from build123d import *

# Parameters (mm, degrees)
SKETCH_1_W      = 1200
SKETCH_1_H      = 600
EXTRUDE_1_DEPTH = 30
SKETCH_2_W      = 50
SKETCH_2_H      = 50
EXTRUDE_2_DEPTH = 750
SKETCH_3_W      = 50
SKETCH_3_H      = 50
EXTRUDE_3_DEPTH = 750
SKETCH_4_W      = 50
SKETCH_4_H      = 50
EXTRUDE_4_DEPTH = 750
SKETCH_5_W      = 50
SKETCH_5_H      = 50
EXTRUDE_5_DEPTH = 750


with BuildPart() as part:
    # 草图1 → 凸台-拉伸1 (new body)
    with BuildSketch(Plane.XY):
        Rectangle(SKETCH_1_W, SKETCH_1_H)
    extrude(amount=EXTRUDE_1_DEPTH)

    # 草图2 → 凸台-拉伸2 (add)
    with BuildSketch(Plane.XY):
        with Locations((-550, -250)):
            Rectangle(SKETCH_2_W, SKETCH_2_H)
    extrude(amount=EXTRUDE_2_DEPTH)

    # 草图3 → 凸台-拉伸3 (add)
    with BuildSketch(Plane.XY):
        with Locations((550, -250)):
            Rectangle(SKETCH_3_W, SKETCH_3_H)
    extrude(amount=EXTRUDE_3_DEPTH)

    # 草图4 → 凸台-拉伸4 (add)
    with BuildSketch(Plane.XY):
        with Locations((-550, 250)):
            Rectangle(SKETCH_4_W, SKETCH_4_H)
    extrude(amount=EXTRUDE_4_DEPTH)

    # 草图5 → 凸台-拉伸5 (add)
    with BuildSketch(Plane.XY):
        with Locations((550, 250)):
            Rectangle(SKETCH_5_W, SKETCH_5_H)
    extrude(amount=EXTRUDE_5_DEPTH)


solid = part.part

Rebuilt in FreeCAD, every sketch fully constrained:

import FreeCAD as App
import Part
import Sketcher
from FreeCAD import Vector
Q = App.Units.Quantity


def add_polygon(sketch, points):
    """Adds a closed chain of lines whose ends are joined by coincident constraints."""
    first, n = sketch.GeometryCount, len(points)
    for a, b in zip(points, points[1:] + points[:1]):
        sketch.addGeometry(Part.LineSegment(App.Vector(*a, 0), App.Vector(*b, 0)), False)
    for i in range(n):
        sketch.addConstraint(Sketcher.Constraint("Coincident", first + i, 2, first + (i + 1) % n, 1))

doc = App.newDocument("Part")
body = doc.addObject("PartDesign::Body", "Body")

# Sketch on XY plane
sketch1 = doc.addObject("Sketcher::SketchObject", "Sketch")
body.addObject(sketch1)
sketch1.AttachmentSupport = (doc.XY_Plane, [""])
sketch1.MapMode = "FlatFace"
add_polygon(sketch1, [(-600, 300), (-600, -300), (600, -300), (600, 300)])  # lines 0-3
sketch1.addConstraint(Sketcher.Constraint("Vertical", 0))
sketch1.addConstraint(Sketcher.Constraint("Horizontal", 1))
sketch1.addConstraint(Sketcher.Constraint("Vertical", 2))
sketch1.addConstraint(Sketcher.Constraint("Horizontal", 3))
sketch1.addConstraint(Sketcher.Constraint("Symmetric", 0, 2, 2, 2, -1, 1))
sketch1.addConstraint(Sketcher.Constraint("DistanceX", 1, 1, 1, 2, Q("1200 mm")))
sketch1.addConstraint(Sketcher.Constraint("DistanceY", 0, 2, 0, 1, Q("600 mm")))
pad1 = doc.addObject("PartDesign::Pad", "Pad")
body.addObject(pad1)
pad1.Profile = sketch1
pad1.Length = 30

# Sketch on XY plane
sketch2 = doc.addObject("Sketcher::SketchObject", "Sketch001")
body.addObject(sketch2)
sketch2.AttachmentSupport = (doc.XY_Plane, [""])
sketch2.MapMode = "FlatFace"
add_polygon(sketch2, [(-575, -225), (-575, -275), (-525, -275), (-525, -225)])  # lines 0-3
sketch2.addConstraint(Sketcher.Constraint("Vertical", 0))
sketch2.addConstraint(Sketcher.Constraint("Horizontal", 1))
sketch2.addConstraint(Sketcher.Constraint("Vertical", 2))
sketch2.addConstraint(Sketcher.Constraint("Horizontal", 3))
sketch2.addConstraint(Sketcher.Constraint("Equal", 3, 0))
sketch2.addConstraint(Sketcher.Constraint("DistanceX", 1, 1, 1, 2, Q("50 mm")))
sketch2.addConstraint(Sketcher.Constraint("DistanceX", 0, 2, -1, 1, Q("575 mm")))
sketch2.addConstraint(Sketcher.Constraint("DistanceY", 0, 2, -1, 1, Q("275 mm")))
pad2 = doc.addObject("PartDesign::Pad", "Pad001")
body.addObject(pad2)
pad2.Profile = sketch2
pad2.Length = 750

# Sketch on XY plane
sketch3 = doc.addObject("Sketcher::SketchObject", "Sketch002")
body.addObject(sketch3)
sketch3.AttachmentSupport = (doc.XY_Plane, [""])
sketch3.MapMode = "FlatFace"
add_polygon(sketch3, [(525, -225), (525, -275), (575, -275), (575, -225)])  # lines 0-3
sketch3.addConstraint(Sketcher.Constraint("Vertical", 0))
sketch3.addConstraint(Sketcher.Constraint("Horizontal", 1))
sketch3.addConstraint(Sketcher.Constraint("Vertical", 2))
sketch3.addConstraint(Sketcher.Constraint("Horizontal", 3))
sketch3.addConstraint(Sketcher.Constraint("Equal", 3, 0))
sketch3.addConstraint(Sketcher.Constraint("DistanceX", 1, 1, 1, 2, Q("50 mm")))
sketch3.addConstraint(Sketcher.Constraint("DistanceX", -1, 1, 0, 2, Q("525 mm")))
sketch3.addConstraint(Sketcher.Constraint("DistanceY", 0, 2, -1, 1, Q("275 mm")))
pad3 = doc.addObject("PartDesign::Pad", "Pad002")
body.addObject(pad3)
pad3.Profile = sketch3
pad3.Length = 750

# Sketch on XY plane
sketch4 = doc.addObject("Sketcher::SketchObject", "Sketch003")
body.addObject(sketch4)
sketch4.AttachmentSupport = (doc.XY_Plane, [""])
sketch4.MapMode = "FlatFace"
add_polygon(sketch4, [(-575, 275), (-575, 225), (-525, 225), (-525, 275)])  # lines 0-3
sketch4.addConstraint(Sketcher.Constraint("Vertical", 0))
sketch4.addConstraint(Sketcher.Constraint("Horizontal", 1))
sketch4.addConstraint(Sketcher.Constraint("Vertical", 2))
sketch4.addConstraint(Sketcher.Constraint("Horizontal", 3))
sketch4.addConstraint(Sketcher.Constraint("Equal", 3, 0))
sketch4.addConstraint(Sketcher.Constraint("DistanceX", 1, 1, 1, 2, Q("50 mm")))
sketch4.addConstraint(Sketcher.Constraint("DistanceX", 0, 2, -1, 1, Q("575 mm")))
sketch4.addConstraint(Sketcher.Constraint("DistanceY", -1, 1, 0, 2, Q("225 mm")))
pad4 = doc.addObject("PartDesign::Pad", "Pad003")
body.addObject(pad4)
pad4.Profile = sketch4
pad4.Length = 750

# Sketch on XY plane
sketch5 = doc.addObject("Sketcher::SketchObject", "Sketch004")
body.addObject(sketch5)
sketch5.AttachmentSupport = (doc.XY_Plane, [""])
sketch5.MapMode = "FlatFace"
add_polygon(sketch5, [(525, 275), (525, 225), (575, 225), (575, 275)])  # lines 0-3
sketch5.addConstraint(Sketcher.Constraint("Vertical", 0))
sketch5.addConstraint(Sketcher.Constraint("Horizontal", 1))
sketch5.addConstraint(Sketcher.Constraint("Vertical", 2))
sketch5.addConstraint(Sketcher.Constraint("Horizontal", 3))
sketch5.addConstraint(Sketcher.Constraint("Equal", 3, 0))
sketch5.addConstraint(Sketcher.Constraint("DistanceX", 1, 1, 1, 2, Q("50 mm")))
sketch5.addConstraint(Sketcher.Constraint("DistanceX", -1, 1, 0, 2, Q("525 mm")))
sketch5.addConstraint(Sketcher.Constraint("DistanceY", -1, 1, 0, 2, Q("225 mm")))
pad5 = doc.addObject("PartDesign::Pad", "Pad004")
body.addObject(pad5)
pad5.Profile = sketch5
pad5.Length = 750

doc.recompute()
